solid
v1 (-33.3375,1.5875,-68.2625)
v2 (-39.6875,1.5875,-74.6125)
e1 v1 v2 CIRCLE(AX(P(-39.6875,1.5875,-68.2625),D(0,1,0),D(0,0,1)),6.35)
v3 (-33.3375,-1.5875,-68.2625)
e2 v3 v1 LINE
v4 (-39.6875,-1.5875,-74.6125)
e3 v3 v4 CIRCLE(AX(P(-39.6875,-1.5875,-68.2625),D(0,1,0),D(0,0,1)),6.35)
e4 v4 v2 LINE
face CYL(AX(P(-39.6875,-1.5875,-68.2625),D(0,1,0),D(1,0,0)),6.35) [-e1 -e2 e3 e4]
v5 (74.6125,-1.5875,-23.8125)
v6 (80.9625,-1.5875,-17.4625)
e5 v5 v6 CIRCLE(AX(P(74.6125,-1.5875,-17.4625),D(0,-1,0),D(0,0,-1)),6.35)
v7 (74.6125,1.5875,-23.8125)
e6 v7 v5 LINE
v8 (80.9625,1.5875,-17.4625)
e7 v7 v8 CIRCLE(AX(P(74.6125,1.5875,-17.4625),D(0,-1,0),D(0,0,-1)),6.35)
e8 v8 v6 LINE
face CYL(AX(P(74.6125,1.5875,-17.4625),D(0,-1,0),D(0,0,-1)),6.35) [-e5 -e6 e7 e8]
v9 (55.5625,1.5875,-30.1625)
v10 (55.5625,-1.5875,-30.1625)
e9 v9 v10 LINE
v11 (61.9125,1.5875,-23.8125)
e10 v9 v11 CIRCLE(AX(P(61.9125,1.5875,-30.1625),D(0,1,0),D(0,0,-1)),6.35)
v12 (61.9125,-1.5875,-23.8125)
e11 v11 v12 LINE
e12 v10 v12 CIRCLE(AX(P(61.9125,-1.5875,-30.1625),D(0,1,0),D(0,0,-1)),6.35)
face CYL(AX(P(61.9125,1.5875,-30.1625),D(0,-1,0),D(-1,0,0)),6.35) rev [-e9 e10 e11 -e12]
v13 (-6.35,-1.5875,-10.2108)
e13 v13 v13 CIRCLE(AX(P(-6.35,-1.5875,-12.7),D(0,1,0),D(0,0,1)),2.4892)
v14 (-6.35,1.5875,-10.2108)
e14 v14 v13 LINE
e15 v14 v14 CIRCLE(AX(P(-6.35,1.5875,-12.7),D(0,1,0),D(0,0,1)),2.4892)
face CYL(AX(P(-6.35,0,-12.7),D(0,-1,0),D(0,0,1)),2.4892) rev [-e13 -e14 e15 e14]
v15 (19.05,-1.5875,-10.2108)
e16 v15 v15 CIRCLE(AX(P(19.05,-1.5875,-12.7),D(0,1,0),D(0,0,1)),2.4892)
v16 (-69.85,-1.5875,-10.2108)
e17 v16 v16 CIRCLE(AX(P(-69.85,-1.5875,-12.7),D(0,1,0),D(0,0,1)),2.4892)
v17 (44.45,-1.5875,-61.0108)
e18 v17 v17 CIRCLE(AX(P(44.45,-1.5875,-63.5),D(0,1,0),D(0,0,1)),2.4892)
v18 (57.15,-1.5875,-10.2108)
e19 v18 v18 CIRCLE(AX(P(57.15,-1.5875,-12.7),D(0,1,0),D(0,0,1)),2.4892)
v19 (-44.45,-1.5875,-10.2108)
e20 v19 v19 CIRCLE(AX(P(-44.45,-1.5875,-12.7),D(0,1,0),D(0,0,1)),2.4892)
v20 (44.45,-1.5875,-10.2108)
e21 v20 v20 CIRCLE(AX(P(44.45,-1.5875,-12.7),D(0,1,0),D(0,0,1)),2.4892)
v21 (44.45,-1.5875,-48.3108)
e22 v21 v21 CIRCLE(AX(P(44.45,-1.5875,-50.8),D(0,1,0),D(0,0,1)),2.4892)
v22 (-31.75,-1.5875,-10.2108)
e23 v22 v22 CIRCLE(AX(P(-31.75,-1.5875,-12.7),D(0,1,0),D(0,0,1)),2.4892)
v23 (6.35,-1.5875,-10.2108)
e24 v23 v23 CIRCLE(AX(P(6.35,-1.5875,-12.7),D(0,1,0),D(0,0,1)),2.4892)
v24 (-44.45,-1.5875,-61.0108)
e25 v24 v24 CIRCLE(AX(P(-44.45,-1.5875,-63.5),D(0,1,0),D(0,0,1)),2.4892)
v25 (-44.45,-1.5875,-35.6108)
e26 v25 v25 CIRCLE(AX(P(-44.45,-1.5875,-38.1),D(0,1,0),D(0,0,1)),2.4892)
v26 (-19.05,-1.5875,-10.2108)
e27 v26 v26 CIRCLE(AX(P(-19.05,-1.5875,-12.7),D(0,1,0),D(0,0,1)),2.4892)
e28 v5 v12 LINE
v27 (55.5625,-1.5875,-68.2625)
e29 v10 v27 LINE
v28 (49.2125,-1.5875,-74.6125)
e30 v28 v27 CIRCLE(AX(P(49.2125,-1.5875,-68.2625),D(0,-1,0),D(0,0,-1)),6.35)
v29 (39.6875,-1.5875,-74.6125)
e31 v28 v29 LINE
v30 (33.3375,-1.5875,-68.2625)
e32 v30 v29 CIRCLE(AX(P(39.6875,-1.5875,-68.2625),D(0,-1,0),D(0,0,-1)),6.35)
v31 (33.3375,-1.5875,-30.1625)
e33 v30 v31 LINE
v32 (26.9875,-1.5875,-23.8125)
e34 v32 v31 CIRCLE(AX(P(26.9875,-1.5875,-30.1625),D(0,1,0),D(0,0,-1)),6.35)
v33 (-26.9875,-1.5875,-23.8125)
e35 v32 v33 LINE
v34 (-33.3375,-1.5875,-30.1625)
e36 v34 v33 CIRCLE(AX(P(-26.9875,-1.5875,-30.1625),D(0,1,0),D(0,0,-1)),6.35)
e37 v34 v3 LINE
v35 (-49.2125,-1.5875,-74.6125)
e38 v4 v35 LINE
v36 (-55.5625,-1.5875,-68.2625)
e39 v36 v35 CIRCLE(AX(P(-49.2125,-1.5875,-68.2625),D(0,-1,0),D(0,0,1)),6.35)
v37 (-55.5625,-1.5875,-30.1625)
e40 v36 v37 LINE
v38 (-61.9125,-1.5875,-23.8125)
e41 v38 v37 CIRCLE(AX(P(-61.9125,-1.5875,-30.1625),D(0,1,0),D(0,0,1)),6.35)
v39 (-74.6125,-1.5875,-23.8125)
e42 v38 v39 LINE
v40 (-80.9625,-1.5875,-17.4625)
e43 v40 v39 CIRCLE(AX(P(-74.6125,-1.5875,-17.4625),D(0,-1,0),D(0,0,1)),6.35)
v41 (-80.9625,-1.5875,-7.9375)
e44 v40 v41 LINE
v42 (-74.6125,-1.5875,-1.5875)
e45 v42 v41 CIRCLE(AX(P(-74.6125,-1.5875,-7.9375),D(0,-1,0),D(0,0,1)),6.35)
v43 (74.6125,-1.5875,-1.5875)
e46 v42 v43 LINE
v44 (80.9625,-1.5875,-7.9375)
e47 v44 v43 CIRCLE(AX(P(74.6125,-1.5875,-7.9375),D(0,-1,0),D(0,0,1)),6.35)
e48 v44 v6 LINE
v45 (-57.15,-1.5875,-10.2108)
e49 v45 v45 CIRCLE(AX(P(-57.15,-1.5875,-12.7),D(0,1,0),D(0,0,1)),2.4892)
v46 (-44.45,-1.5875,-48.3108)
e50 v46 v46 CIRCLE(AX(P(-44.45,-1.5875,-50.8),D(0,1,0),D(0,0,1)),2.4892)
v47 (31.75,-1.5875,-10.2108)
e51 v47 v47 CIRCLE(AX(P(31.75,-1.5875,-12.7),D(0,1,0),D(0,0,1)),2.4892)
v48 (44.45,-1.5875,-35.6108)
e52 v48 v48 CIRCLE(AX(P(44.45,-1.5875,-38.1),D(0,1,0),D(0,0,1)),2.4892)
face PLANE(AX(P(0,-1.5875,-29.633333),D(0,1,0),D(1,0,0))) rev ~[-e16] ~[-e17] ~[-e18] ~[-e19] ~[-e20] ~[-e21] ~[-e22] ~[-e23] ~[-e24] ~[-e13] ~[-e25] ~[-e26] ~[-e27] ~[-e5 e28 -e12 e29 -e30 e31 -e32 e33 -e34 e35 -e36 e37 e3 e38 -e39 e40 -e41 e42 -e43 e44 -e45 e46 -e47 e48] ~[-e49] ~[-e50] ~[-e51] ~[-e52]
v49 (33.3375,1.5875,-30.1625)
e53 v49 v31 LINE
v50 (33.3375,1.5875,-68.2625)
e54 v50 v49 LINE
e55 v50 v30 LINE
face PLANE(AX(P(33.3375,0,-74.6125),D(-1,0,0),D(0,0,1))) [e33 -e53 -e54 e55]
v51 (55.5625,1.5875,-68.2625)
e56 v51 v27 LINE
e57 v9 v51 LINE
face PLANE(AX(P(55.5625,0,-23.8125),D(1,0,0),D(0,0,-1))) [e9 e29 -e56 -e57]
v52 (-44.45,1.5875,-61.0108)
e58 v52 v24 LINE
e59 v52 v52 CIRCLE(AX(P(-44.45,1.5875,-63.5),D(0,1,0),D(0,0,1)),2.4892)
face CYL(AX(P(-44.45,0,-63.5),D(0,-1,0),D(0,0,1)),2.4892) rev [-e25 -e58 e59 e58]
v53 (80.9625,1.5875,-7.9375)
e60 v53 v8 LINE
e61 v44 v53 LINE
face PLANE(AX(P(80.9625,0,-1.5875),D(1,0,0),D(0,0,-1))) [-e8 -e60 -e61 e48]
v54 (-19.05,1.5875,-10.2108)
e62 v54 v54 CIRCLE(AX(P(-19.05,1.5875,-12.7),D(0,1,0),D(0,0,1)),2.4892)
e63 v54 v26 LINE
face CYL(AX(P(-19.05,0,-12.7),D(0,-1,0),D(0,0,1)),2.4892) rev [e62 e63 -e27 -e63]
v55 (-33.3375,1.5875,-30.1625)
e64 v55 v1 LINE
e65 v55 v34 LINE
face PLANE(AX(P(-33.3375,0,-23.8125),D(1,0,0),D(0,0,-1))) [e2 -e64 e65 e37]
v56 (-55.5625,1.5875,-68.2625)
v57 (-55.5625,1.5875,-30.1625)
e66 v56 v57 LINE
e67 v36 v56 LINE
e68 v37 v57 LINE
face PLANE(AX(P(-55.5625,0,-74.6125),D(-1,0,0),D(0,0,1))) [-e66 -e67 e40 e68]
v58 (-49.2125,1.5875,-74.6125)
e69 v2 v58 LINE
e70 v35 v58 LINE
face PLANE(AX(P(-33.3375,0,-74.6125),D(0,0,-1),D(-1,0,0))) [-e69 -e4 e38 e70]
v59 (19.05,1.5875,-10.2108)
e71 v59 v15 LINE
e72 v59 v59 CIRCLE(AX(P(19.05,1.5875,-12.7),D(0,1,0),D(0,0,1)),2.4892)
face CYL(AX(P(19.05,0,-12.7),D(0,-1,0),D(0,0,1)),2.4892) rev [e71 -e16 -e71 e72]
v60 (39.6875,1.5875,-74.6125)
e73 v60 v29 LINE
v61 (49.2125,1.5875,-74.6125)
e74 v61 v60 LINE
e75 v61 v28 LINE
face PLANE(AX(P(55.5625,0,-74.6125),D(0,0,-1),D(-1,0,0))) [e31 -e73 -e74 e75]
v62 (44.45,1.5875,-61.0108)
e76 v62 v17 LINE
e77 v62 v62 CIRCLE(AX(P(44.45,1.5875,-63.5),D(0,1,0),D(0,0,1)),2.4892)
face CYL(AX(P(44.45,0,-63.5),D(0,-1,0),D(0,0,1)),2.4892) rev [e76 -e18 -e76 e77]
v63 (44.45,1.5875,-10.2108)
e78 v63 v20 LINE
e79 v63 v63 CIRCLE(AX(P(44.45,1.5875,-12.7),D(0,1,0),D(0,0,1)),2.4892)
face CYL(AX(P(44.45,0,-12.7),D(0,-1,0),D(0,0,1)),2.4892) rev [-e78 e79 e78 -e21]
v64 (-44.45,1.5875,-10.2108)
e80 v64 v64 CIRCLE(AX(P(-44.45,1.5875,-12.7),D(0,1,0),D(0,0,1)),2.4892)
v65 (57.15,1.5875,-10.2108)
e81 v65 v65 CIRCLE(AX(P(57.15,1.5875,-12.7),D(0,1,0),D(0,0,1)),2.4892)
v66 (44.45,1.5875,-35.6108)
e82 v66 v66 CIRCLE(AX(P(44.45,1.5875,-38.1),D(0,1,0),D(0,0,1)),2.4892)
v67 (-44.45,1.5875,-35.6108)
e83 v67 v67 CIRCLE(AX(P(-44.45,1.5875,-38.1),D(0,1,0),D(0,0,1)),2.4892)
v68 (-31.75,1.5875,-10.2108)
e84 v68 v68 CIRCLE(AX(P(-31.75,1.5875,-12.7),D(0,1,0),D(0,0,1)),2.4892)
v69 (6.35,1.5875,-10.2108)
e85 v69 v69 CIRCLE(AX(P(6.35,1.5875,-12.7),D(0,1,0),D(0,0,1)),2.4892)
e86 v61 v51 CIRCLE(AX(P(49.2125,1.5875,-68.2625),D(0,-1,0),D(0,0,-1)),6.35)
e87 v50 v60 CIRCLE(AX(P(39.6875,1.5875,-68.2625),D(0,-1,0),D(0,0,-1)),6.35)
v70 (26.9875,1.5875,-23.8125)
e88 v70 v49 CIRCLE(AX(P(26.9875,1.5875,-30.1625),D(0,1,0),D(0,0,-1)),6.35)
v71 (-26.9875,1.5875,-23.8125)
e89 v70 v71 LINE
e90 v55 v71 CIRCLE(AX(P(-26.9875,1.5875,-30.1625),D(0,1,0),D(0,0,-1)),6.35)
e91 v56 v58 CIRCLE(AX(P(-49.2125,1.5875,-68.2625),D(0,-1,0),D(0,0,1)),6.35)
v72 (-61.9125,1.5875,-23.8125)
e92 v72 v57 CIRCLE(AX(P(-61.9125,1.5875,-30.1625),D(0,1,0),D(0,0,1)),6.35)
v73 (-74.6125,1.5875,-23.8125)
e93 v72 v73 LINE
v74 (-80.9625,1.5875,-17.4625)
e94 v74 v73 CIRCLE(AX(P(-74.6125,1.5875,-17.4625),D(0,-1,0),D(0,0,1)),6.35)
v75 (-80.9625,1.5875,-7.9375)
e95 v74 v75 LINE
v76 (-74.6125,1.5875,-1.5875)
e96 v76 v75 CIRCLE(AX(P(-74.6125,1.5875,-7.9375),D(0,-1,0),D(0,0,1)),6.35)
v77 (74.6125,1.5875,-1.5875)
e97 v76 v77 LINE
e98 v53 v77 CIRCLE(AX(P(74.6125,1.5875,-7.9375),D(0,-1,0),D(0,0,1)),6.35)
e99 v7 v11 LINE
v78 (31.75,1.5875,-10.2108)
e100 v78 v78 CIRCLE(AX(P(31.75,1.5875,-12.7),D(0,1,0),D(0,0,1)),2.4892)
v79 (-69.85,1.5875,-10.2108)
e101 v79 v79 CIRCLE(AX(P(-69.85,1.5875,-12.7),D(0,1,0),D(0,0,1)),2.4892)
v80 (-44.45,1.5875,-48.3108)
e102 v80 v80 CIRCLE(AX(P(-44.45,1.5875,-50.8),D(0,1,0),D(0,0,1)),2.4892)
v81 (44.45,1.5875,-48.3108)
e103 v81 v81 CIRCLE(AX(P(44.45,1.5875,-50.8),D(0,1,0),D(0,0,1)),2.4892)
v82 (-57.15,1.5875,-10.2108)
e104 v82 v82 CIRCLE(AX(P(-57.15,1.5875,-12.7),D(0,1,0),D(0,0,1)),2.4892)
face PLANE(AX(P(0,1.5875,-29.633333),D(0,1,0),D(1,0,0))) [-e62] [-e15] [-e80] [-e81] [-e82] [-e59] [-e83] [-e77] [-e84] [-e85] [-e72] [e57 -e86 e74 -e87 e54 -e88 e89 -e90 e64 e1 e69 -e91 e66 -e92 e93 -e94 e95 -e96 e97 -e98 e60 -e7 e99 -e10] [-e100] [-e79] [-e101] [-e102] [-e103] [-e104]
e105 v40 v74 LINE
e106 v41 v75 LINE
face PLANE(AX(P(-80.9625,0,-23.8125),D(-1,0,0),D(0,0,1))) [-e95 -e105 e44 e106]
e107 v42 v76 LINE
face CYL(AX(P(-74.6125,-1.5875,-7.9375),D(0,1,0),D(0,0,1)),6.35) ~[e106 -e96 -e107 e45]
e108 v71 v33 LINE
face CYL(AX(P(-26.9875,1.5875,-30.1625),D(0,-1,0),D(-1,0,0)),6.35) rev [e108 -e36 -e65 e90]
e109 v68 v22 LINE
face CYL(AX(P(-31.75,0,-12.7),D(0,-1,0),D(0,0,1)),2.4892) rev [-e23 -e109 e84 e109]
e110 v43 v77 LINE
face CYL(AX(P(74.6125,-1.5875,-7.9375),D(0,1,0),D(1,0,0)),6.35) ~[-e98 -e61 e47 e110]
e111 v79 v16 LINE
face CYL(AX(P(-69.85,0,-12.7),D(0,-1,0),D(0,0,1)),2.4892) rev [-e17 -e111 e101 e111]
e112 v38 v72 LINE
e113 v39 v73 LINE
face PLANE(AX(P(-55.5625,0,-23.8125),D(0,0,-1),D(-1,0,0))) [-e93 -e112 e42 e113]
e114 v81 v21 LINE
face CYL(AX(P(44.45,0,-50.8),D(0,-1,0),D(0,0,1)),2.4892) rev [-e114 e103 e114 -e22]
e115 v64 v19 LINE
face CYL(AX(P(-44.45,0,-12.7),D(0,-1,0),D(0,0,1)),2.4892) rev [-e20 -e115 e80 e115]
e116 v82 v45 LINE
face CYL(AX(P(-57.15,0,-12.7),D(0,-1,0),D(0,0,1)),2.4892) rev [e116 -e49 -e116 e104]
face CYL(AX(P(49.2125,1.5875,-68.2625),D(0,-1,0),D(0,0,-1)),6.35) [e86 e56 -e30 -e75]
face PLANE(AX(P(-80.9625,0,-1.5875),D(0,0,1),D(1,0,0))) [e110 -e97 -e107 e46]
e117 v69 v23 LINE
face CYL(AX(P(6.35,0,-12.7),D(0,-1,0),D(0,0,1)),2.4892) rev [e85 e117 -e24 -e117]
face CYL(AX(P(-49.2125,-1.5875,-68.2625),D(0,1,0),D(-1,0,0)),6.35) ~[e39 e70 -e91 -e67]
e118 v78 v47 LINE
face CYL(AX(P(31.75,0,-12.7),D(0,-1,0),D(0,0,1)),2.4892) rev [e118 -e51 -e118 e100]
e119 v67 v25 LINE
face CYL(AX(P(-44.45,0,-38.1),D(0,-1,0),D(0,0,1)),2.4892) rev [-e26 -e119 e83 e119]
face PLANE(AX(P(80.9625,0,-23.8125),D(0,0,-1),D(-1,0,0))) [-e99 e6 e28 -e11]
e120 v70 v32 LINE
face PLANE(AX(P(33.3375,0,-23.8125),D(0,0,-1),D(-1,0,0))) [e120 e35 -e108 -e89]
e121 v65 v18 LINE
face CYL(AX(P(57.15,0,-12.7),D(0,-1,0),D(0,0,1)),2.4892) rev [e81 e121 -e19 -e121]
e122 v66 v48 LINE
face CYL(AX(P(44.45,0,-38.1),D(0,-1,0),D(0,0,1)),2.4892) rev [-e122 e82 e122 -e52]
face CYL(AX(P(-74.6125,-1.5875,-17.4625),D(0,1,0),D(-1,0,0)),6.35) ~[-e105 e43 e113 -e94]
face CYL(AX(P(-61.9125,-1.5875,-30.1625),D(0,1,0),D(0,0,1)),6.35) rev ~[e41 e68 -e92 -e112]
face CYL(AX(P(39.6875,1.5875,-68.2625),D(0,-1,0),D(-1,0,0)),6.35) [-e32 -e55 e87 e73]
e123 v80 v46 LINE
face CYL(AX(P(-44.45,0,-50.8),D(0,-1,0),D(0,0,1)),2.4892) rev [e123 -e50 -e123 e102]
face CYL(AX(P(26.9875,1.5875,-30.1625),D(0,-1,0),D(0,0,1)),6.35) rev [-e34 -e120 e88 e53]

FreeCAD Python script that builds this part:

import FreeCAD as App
import Part
import Sketcher

V = App.Vector
Q = App.Units.Quantity


def edges_at(feature, points):
    """Names of the edges that pass closest to the given points."""
    edges = feature.Shape.Edges
    near = lambda p: min(range(len(edges)), key=lambda i: edges[i].distToShape(Part.Vertex(*p))[0])
    return sorted({f"Edge{near(p) + 1}" for p in points})

doc = App.newDocument("Part")
body = doc.addObject("PartDesign::Body", "Body")

# Sketch on XZ plane
sketch1 = doc.addObject("Sketcher::SketchObject", "Sketch")
body.addObject(sketch1)
sketch1.AttachmentSupport = (doc.XZ_Plane, [""])
sketch1.MapMode = "FlatFace"
sketch1.addGeometry(Part.LineSegment(V(-33.3, -23.8, 0), V(-33.3, -74.6, 0)), False)
sketch1.addGeometry(Part.LineSegment(V(-33.3, -74.6, 0), V(-55.6, -74.6, 0)), False)
sketch1.addGeometry(Part.LineSegment(V(-55.6, -74.6, 0), V(-55.6, -23.8, 0)), False)
sketch1.addGeometry(Part.LineSegment(V(-55.6, -23.8, 0), V(-81, -23.8, 0)), False)
sketch1.addGeometry(Part.LineSegment(V(-81, -23.8, 0), V(-81, -1.6, 0)), False)
sketch1.addGeometry(Part.LineSegment(V(-81, -1.6, 0), V(81, -1.6, 0)), False)
sketch1.addGeometry(Part.LineSegment(V(81, -1.6, 0), V(81, -23.8, 0)), False)
sketch1.addGeometry(Part.LineSegment(V(81, -23.8, 0), V(55.6, -23.8, 0)), False)
sketch1.addGeometry(Part.LineSegment(V(55.6, -23.8, 0), V(55.6, -74.6, 0)), False)
sketch1.addGeometry(Part.LineSegment(V(55.6, -74.6, 0), V(33.3, -74.6, 0)), False)
sketch1.addGeometry(Part.LineSegment(V(33.3, -74.6, 0), V(33.3, -23.8, 0)), False)
sketch1.addGeometry(Part.LineSegment(V(33.3, -23.8, 0), V(-33.3, -23.8, 0)), False)
sketch1.addGeometry(Part.Circle(V(-69.8, -12.7, 0), V(0, 0, 1), 2.5), False)
sketch1.addGeometry(Part.Circle(V(-57.1, -12.7, 0), V(0, 0, 1), 2.5), False)
sketch1.addGeometry(Part.Circle(V(-44.5, -12.7, 0), V(0, 0, 1), 2.5), False)
sketch1.addGeometry(Part.Circle(V(-31.8, -12.7, 0), V(0, 0, 1), 2.5), False)
sketch1.addGeometry(Part.Circle(V(-19.1, -12.7, 0), V(0, 0, 1), 2.5), False)
sketch1.addGeometry(Part.Circle(V(-6.3, -12.7, 0), V(0, 0, 1), 2.5), False)
sketch1.addGeometry(Part.Circle(V(6.3, -12.7, 0), V(0, 0, 1), 2.5), False)
sketch1.addGeometry(Part.Circle(V(19.1, -12.7, 0), V(0, 0, 1), 2.5), False)
sketch1.addGeometry(Part.Circle(V(31.8, -12.7, 0), V(0, 0, 1), 2.5), False)
sketch1.addGeometry(Part.Circle(V(44.5, -12.7, 0), V(0, 0, 1), 2.5), False)
sketch1.addGeometry(Part.Circle(V(57.1, -12.7, 0), V(0, 0, 1), 2.5), False)
sketch1.addGeometry(Part.Circle(V(-44.5, -38.1, 0), V(0, 0, 1), 2.5), False)
sketch1.addGeometry(Part.Circle(V(-44.5, -50.8, 0), V(0, 0, 1), 2.5), False)
sketch1.addGeometry(Part.Circle(V(-44.5, -63.5, 0), V(0, 0, 1), 2.5), False)
sketch1.addGeometry(Part.Circle(V(44.5, -38.1, 0), V(0, 0, 1), 2.5), False)
sketch1.addGeometry(Part.Circle(V(44.5, -50.8, 0), V(0, 0, 1), 2.5), False)
sketch1.addGeometry(Part.Circle(V(44.5, -63.5, 0), V(0, 0, 1), 2.5), False)
sketch1.addConstraint(Sketcher.Constraint("Coincident", 0, 2, 1, 1))
sketch1.addConstraint(Sketcher.Constraint("Coincident", 1, 2, 2, 1))
sketch1.addConstraint(Sketcher.Constraint("Coincident", 2, 2, 3, 1))
sketch1.addConstraint(Sketcher.Constraint("Coincident", 3, 2, 4, 1))
sketch1.addConstraint(Sketcher.Constraint("Coincident", 4, 2, 5, 1))
sketch1.addConstraint(Sketcher.Constraint("Coincident", 5, 2, 6, 1))
sketch1.addConstraint(Sketcher.Constraint("Coincident", 6, 2, 7, 1))
sketch1.addConstraint(Sketcher.Constraint("Coincident", 7, 2, 8, 1))
sketch1.addConstraint(Sketcher.Constraint("Coincident", 8, 2, 9, 1))
sketch1.addConstraint(Sketcher.Constraint("Coincident", 9, 2, 10, 1))
sketch1.addConstraint(Sketcher.Constraint("Coincident", 10, 2, 11, 1))
sketch1.addConstraint(Sketcher.Constraint("Coincident", 11, 2, 0, 1))
sketch1.addConstraint(Sketcher.Constraint("Vertical", 0))
sketch1.addConstraint(Sketcher.Constraint("Horizontal", 1))
sketch1.addConstraint(Sketcher.Constraint("Vertical", 2))
sketch1.addConstraint(Sketcher.Constraint("Horizontal", 3))
sketch1.addConstraint(Sketcher.Constraint("Vertical", 4))
sketch1.addConstraint(Sketcher.Constraint("Horizontal", 5))
sketch1.addConstraint(Sketcher.Constraint("Vertical", 6))
sketch1.addConstraint(Sketcher.Constraint("Horizontal", 7))
sketch1.addConstraint(Sketcher.Constraint("Vertical", 8))
sketch1.addConstraint(Sketcher.Constraint("Horizontal", 9))
sketch1.addConstraint(Sketcher.Constraint("Vertical", 10))
sketch1.addConstraint(Sketcher.Constraint("Horizontal", 11))
sketch1.addConstraint(Sketcher.Constraint("Equal", 12, 13))
sketch1.addConstraint(Sketcher.Constraint("Equal", 13, 14))
sketch1.addConstraint(Sketcher.Constraint("Equal", 14, 15))
sketch1.addConstraint(Sketcher.Constraint("Equal", 15, 16))
sketch1.addConstraint(Sketcher.Constraint("Equal", 16, 17))
sketch1.addConstraint(Sketcher.Constraint("Equal", 17, 18))
sketch1.addConstraint(Sketcher.Constraint("Equal", 18, 19))
sketch1.addConstraint(Sketcher.Constraint("Equal", 19, 20))
sketch1.addConstraint(Sketcher.Constraint("Equal", 20, 21))
sketch1.addConstraint(Sketcher.Constraint("Equal", 21, 22))
sketch1.addConstraint(Sketcher.Constraint("Equal", 22, 23))
sketch1.addConstraint(Sketcher.Constraint("Equal", 23, 24))
sketch1.addConstraint(Sketcher.Constraint("Equal", 24, 25))
sketch1.addConstraint(Sketcher.Constraint("Equal", 25, 26))
sketch1.addConstraint(Sketcher.Constraint("Equal", 26, 27))
sketch1.addConstraint(Sketcher.Constraint("Equal", 27, 28))
sketch1.addConstraint(Sketcher.Constraint("Symmetric", 17, 3, 18, 3, -2))
sketch1.addConstraint(Sketcher.Constraint("Symmetric", 16, 3, 19, 3, -2))
sketch1.addConstraint(Sketcher.Constraint("Symmetric", 15, 3, 20, 3, -2))
sketch1.addConstraint(Sketcher.Constraint("Symmetric", 14, 3, 21, 3, -2))
sketch1.addConstraint(Sketcher.Constraint("Symmetric", 13, 3, 22, 3, -2))
sketch1.addConstraint(Sketcher.Constraint("Symmetric", 23, 3, 26, 3, -2))
sketch1.addConstraint(Sketcher.Constraint("Symmetric", 24, 3, 27, 3, -2))
sketch1.addConstraint(Sketcher.Constraint("Symmetric", 25, 3, 28, 3, -2))
sketch1.addConstraint(Sketcher.Constraint("Symmetric", 3, 2, 6, 2, -2))
sketch1.addConstraint(Sketcher.Constraint("Symmetric", 1, 2, 8, 2, -2))
sketch1.addConstraint(Sketcher.Constraint("Horizontal", 12, 3, 13, 3))
sketch1.addConstraint(Sketcher.Constraint("Horizontal", 13, 3, 14, 3))
sketch1.addConstraint(Sketcher.Constraint("Horizontal", 14, 3, 15, 3))
sketch1.addConstraint(Sketcher.Constraint("Horizontal", 15, 3, 16, 3))
sketch1.addConstraint(Sketcher.Constraint("Horizontal", 16, 3, 17, 3))
sketch1.addConstraint(Sketcher.Constraint("Horizontal", 7, 2, 10, 2))
sketch1.addConstraint(Sketcher.Constraint("Vertical", 14, 3, 23, 3))
sketch1.addConstraint(Sketcher.Constraint("Vertical", 23, 3, 24, 3))
sketch1.addConstraint(Sketcher.Constraint("Vertical", 24, 3, 25, 3))
sketch1.addConstraint(Sketcher.Constraint("Equal", 1, 9))
sketch1.addConstraint(Sketcher.Constraint("Equal", 9, 4))
sketch1.addConstraint(Sketcher.Constraint("DistanceX", 3, 2, 3, 1, Q("1 in")))
sketch1.addConstraint(Sketcher.Constraint("DistanceY", 0, 2, 0, 1, Q("2 in")))
sketch1.addConstraint(Sketcher.Constraint("Diameter", 12, Q("0.196 in")))
sketch1.addConstraint(Sketcher.Constraint("DistanceY", 24, 3, -1, 1, Q("2 in")))
sketch1.addConstraint(Sketcher.Constraint("DistanceX", 12, 3, 14, 3, Q("1 in")))
sketch1.addConstraint(Sketcher.Constraint("DistanceX", 13, 3, 15, 3, Q("1 in")))
sketch1.addConstraint(Sketcher.Constraint("DistanceX", 14, 3, 16, 3, Q("1 in")))
sketch1.addConstraint(Sketcher.Constraint("DistanceX", 15, 3, 17, 3, Q("1 in")))
sketch1.addConstraint(Sketcher.Constraint("DistanceX", 16, 3, 18, 3, Q("1 in")))
sketch1.addConstraint(Sketcher.Constraint("DistanceY", 23, 3, 14, 3, Q("1 in")))
sketch1.addConstraint(Sketcher.Constraint("DistanceY", 25, 3, 23, 3, Q("1 in")))
sketch1.addConstraint(Sketcher.Constraint("DistanceY", 12, 3, -1, 1, Q("0.5 in")))
sketch1.addConstraint(Sketcher.Constraint("DistanceX", 12, 3, 13, 3, Q("0.5 in")))
sketch1.addConstraint(Sketcher.Constraint("DistanceX", 1, 2, 1, 1, Q("0.875 in")))
sketch1.addConstraint(Sketcher.Constraint("DistanceX", 5, 1, 5, 2, Q("6.375 in")))
sketch1.addConstraint(Sketcher.Constraint("DistanceY", 0, 2, -1, 1, Q("2.9375 in")))
pad1 = doc.addObject("PartDesign::Pad", "Pad")
body.addObject(pad1)
pad1.Profile = sketch1
pad1.Length = Q("0.125 in")
pad1.Midplane = True
doc.recompute()

fillet = doc.addObject("PartDesign::Fillet", "Fillet")
body.addObject(fillet)
fillet.Base = (pad1, edges_at(pad1, [
    (-33.337, 0, -23.812),
    (33.337, 0, -23.812),
    (33.337, 0, -74.612),
    (55.562, 0, -74.612),
    (55.562, 0, -23.812),
    (80.963, 0, -23.812),
    (80.963, 0, -1.587),
    (-80.963, 0, -1.587),
    (-80.963, 0, -23.812),
    (-55.562, 0, -23.812),
    (-55.562, 0, -74.612),
    (-33.337, 0, -74.612),
]))
fillet.Radius = Q("0.25 in")

doc.recompute()
